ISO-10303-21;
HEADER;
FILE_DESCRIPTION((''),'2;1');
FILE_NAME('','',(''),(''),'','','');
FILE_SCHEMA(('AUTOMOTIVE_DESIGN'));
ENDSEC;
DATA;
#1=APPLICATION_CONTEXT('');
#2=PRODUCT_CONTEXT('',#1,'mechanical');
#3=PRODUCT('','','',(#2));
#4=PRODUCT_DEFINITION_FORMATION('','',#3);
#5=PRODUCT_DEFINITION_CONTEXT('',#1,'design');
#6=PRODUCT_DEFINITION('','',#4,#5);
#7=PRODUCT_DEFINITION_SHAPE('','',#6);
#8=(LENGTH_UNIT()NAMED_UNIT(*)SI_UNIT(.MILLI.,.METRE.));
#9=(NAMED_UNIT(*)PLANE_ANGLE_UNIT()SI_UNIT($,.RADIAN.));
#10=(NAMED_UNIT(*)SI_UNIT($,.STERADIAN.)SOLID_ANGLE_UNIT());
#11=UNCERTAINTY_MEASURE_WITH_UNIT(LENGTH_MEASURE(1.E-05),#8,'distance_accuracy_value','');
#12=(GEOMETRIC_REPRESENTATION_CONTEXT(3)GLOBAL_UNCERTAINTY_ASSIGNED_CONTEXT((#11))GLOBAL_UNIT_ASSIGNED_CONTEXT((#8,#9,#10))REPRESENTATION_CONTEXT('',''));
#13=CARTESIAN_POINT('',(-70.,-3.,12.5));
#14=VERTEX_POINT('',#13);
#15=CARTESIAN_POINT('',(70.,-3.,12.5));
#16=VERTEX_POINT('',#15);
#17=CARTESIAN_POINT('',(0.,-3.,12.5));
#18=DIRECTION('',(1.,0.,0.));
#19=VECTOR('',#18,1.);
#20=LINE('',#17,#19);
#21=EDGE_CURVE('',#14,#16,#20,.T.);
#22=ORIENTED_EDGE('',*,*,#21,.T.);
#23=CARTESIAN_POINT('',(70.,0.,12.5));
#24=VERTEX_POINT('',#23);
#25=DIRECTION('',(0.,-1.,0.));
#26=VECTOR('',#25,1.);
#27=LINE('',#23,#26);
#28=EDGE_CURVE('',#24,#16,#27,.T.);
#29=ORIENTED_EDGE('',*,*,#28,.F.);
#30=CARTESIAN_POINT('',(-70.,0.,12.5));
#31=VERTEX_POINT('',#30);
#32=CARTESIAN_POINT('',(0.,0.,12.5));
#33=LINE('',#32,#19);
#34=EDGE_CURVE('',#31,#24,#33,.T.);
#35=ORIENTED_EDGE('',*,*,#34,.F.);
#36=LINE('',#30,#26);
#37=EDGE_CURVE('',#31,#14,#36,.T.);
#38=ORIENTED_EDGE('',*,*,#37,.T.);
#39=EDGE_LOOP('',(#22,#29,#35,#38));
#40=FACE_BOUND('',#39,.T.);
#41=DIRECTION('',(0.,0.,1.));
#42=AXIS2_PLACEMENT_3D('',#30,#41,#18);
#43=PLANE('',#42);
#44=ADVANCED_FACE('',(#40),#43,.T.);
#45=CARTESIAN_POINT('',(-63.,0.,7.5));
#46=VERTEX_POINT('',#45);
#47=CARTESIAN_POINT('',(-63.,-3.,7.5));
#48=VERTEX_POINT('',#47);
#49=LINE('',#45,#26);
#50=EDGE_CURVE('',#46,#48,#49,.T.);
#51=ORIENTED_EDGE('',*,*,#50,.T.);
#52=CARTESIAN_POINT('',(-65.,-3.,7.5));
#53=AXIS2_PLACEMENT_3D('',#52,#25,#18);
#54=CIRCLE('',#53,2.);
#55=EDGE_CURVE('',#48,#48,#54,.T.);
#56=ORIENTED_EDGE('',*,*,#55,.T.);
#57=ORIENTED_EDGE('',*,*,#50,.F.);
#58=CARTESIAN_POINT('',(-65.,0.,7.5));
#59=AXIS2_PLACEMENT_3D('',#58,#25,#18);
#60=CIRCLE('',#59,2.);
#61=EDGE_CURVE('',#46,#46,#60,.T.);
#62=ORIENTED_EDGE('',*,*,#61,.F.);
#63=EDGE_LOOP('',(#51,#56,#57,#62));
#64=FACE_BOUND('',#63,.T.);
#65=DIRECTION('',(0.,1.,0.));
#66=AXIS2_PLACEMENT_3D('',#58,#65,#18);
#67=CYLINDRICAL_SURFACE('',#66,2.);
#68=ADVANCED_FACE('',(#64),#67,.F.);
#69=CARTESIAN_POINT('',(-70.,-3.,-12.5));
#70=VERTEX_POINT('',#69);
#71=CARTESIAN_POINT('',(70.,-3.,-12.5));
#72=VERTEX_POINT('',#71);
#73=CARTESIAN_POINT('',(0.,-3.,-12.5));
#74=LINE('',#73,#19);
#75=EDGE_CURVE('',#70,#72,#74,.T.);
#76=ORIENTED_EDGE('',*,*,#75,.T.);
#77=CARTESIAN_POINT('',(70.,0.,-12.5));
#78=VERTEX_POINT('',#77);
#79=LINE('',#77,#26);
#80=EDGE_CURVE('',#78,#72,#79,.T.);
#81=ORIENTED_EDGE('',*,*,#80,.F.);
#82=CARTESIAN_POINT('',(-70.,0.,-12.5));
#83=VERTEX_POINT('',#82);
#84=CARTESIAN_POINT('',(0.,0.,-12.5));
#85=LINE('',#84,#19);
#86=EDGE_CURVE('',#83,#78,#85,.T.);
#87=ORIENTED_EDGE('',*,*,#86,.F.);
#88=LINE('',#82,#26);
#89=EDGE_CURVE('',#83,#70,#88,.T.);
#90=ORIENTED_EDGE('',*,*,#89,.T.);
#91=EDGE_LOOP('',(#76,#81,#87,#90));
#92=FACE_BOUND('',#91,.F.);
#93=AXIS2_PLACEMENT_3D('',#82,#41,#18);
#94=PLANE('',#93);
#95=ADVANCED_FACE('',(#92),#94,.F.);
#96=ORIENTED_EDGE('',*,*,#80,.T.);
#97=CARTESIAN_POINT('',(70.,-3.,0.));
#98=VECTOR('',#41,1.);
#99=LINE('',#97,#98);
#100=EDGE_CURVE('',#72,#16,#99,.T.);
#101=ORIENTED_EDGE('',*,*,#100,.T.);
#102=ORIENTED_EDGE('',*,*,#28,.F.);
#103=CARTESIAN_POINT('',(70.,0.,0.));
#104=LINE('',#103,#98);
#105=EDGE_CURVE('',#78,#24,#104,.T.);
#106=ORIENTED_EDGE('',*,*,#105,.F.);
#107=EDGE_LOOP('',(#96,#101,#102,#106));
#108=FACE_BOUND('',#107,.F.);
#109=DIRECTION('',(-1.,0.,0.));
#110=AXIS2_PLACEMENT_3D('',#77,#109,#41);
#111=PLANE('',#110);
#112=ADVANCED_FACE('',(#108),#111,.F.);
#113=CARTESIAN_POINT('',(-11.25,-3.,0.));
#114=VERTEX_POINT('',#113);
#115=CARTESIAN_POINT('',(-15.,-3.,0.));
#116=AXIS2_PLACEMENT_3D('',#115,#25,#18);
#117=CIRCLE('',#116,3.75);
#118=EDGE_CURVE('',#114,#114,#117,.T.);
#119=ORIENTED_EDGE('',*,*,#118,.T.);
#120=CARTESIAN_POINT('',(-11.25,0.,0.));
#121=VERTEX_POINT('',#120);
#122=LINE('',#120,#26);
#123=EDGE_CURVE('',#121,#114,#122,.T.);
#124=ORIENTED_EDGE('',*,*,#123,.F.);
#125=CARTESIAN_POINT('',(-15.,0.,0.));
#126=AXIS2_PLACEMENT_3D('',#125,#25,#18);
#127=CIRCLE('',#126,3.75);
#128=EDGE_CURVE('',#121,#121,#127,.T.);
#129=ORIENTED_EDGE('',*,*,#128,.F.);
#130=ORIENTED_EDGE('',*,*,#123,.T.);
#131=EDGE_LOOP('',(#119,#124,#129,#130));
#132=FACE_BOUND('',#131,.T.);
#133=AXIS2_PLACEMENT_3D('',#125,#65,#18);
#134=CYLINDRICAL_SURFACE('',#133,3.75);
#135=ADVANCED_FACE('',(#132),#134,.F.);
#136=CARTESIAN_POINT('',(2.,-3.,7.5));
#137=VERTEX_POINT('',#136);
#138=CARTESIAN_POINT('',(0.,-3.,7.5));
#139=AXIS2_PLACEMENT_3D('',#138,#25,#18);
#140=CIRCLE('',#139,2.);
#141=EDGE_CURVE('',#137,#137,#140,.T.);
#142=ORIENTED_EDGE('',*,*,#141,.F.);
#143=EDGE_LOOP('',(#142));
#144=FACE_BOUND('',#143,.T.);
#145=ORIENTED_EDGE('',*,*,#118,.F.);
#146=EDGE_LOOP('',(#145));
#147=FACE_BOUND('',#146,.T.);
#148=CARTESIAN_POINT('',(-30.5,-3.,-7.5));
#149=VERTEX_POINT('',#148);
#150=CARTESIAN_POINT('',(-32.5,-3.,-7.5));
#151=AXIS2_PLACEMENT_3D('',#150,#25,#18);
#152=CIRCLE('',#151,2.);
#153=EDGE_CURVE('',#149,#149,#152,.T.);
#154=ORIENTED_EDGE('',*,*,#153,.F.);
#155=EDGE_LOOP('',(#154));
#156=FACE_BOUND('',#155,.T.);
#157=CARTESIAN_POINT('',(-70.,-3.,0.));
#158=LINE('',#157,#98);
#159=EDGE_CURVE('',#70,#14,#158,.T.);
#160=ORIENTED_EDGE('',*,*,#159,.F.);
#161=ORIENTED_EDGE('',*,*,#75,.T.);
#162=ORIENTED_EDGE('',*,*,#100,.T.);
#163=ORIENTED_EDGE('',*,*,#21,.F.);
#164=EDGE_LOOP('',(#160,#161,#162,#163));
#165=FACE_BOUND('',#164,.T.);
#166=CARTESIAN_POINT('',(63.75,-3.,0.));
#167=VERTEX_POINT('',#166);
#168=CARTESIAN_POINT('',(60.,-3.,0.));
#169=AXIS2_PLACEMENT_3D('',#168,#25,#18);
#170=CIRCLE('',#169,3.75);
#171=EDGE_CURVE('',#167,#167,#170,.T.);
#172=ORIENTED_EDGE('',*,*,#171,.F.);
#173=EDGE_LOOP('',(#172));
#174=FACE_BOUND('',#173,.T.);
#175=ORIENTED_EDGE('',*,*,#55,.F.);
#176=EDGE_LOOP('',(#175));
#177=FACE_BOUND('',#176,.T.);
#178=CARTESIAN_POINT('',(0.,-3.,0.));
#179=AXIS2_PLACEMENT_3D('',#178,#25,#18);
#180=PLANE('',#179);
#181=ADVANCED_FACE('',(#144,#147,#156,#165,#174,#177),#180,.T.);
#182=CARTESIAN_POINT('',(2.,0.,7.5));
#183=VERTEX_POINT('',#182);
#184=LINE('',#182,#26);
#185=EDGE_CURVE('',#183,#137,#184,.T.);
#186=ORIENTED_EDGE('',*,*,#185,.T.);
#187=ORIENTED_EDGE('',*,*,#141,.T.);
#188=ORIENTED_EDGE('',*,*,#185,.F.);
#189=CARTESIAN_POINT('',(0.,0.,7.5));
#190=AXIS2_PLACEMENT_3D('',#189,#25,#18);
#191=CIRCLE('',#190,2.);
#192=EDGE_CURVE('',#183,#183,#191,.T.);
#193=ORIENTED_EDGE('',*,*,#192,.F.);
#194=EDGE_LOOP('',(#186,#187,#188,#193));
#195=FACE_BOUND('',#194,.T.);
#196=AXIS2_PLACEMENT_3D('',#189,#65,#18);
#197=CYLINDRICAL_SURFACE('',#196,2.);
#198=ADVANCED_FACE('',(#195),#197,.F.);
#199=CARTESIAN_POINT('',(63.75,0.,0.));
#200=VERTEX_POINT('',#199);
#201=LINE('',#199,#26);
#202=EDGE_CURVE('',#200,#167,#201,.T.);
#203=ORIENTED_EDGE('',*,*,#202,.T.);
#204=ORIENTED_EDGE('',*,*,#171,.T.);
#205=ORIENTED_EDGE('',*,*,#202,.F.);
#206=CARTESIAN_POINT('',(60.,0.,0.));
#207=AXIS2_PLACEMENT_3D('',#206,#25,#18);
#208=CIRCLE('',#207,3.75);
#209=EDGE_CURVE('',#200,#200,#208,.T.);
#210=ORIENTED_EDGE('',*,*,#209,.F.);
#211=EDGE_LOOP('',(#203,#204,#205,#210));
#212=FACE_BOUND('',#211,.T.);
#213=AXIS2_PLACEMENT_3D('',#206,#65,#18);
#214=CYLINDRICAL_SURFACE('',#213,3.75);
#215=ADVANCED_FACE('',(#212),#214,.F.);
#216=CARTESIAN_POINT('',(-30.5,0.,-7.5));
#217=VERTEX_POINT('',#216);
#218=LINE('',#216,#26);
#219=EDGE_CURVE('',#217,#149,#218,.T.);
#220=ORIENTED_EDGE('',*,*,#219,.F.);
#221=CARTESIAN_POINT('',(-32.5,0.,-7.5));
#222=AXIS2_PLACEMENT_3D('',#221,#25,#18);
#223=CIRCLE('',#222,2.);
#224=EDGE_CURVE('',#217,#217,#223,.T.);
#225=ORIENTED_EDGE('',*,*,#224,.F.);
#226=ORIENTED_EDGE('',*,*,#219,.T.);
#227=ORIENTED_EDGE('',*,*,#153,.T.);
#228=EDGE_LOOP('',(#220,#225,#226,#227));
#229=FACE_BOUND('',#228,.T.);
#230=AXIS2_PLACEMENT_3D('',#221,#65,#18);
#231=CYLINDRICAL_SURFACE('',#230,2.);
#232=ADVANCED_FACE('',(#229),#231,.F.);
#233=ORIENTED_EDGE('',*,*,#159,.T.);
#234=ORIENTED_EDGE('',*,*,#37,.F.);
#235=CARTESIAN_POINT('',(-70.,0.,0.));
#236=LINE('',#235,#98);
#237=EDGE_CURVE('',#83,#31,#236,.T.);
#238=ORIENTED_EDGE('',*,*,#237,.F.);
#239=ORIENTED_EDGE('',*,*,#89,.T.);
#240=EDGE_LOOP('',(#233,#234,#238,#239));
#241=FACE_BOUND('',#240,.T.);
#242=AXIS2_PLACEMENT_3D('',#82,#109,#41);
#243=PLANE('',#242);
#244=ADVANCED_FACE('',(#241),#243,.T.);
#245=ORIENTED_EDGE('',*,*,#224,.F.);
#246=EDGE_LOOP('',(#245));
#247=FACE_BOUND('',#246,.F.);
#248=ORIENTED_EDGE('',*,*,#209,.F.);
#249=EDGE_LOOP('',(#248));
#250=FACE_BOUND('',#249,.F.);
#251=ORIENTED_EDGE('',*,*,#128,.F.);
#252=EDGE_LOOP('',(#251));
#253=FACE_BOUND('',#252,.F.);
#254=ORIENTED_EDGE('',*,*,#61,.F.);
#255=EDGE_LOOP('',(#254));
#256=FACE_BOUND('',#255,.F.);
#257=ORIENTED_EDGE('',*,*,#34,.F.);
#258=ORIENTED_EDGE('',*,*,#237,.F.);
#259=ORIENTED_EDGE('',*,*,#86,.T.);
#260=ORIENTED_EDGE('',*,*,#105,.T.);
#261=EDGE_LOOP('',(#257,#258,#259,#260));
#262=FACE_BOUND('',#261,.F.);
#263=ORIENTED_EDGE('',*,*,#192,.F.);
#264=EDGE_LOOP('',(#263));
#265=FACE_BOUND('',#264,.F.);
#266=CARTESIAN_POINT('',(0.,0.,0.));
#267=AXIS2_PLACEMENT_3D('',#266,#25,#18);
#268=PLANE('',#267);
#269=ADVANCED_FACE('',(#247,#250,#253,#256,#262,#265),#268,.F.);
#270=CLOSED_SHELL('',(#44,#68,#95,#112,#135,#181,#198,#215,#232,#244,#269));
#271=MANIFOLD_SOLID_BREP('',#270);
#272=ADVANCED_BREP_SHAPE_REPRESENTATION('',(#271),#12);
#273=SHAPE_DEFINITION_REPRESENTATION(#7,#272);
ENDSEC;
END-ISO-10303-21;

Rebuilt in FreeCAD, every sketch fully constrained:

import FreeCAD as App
import Part
import Sketcher

V = App.Vector
Q = App.Units.Quantity

doc = App.newDocument("Part")
params = doc.addObject("Spreadsheet::Sheet", "Params")
for row, (alias, value) in enumerate([
    ("sketch1_diameter", "4 mm"),
    ("sketch1_diameter2", "7.5 mm"),
    ("sketch1_width", "140 mm"),
    ("sketch1_height", "25 mm"),
    ("pad1_length", "3 mm"),
], start=1):
    params.set(f"A{row}", alias)
    params.set(f"B{row}", "=" + value)
    params.setAlias(f"B{row}", alias)

body = doc.addObject("PartDesign::Body", "Body")

# Sketch on XZ plane
sketch1 = body.newObject("Sketcher::SketchObject", "Sketch")
sketch1.AttachmentSupport = (doc.getObject("XZ_Plane"), [""])
sketch1.MapMode = "FlatFace"
sketch1.addGeometry(Part.LineSegment(V(-70, 12.5, 0), V(-70, -12.5, 0)), False)
sketch1.addGeometry(Part.LineSegment(V(-70, -12.5, 0), V(70, -12.5, 0)), False)
sketch1.addGeometry(Part.LineSegment(V(70, -12.5, 0), V(70, 12.5, 0)), False)
sketch1.addGeometry(Part.LineSegment(V(70, 12.5, 0), V(-70, 12.5, 0)), False)
sketch1.addGeometry(Part.Circle(V(-32.5, -7.5, 0), V(0, 0, 1), 2), False)
sketch1.addGeometry(Part.Circle(V(-15, 0, 0), V(0, 0, 1), 3.8), False)
sketch1.addGeometry(Part.Circle(V(-65, 7.5, 0), V(0, 0, 1), 2), False)
sketch1.addGeometry(Part.Circle(V(60, 0, 0), V(0, 0, 1), 3.8), False)
sketch1.addGeometry(Part.Circle(V(0, 7.5, 0), V(0, 0, 1), 2), False)
sketch1.addConstraint(Sketcher.Constraint("Coincident", 0, 2, 1, 1))
sketch1.addConstraint(Sketcher.Constraint("Coincident", 1, 2, 2, 1))
sketch1.addConstraint(Sketcher.Constraint("Coincident", 2, 2, 3, 1))
sketch1.addConstraint(Sketcher.Constraint("Coincident", 3, 2, 0, 1))
sketch1.addConstraint(Sketcher.Constraint("Vertical", 0))
sketch1.addConstraint(Sketcher.Constraint("Horizontal", 1))
sketch1.addConstraint(Sketcher.Constraint("Vertical", 2))
sketch1.addConstraint(Sketcher.Constraint("Horizontal", 3))
sketch1.addConstraint(Sketcher.Constraint("Equal", 4, 6))
sketch1.addConstraint(Sketcher.Constraint("Equal", 5, 7))
sketch1.addConstraint(Sketcher.Constraint("Equal", 6, 8))
sketch1.addConstraint(Sketcher.Constraint("Symmetric", 0, 2, 2, 2, -1, 1))
sketch1.addConstraint(Sketcher.Constraint("PointOnObject", 5, 3, -1))
sketch1.addConstraint(Sketcher.Constraint("PointOnObject", 7, 3, -1))
sketch1.addConstraint(Sketcher.Constraint("PointOnObject", 8, 3, -2))
sketch1.addConstraint(Sketcher.Constraint("Horizontal", 6, 3, 8, 3))
sketch1.addConstraint(Sketcher.Constraint("Diameter", 4, Q("4 mm")))
sketch1.addConstraint(Sketcher.Constraint("Diameter", 5, Q("7.5 mm")))
sketch1.addConstraint(Sketcher.Constraint("DistanceX", 1, 1, 1, 2, Q("140 mm")))
sketch1.addConstraint(Sketcher.Constraint("DistanceY", 0, 2, 0, 1, Q("25 mm")))
sketch1.addConstraint(Sketcher.Constraint("DistanceX", 5, 3, -1, 1, Q("15 mm")))
sketch1.addConstraint(Sketcher.Constraint("DistanceX", 6, 3, -1, 1, Q("65 mm")))
sketch1.addConstraint(Sketcher.Constraint("DistanceX", -1, 1, 7, 3, Q("60 mm")))
sketch1.addConstraint(Sketcher.Constraint("DistanceY", 4, 3, 6, 3, Q("15 mm")))
sketch1.addConstraint(Sketcher.Constraint("DistanceY", 0, 2, 6, 3, Q("20 mm")))
sketch1.addConstraint(Sketcher.Constraint("DistanceX", 4, 3, -1, 1, Q("32.5 mm")))
sketch1.setExpression("Constraints[16]", "Params.sketch1_diameter")
sketch1.setExpression("Constraints[17]", "Params.sketch1_diameter2")
sketch1.setExpression("Constraints[18]", "Params.sketch1_width")
sketch1.setExpression("Constraints[19]", "Params.sketch1_height")
pad1 = body.newObject("PartDesign::Pad", "Pad")
pad1.Profile = sketch1
pad1.setExpression("Length", "Params.pad1_length")

doc.recompute()
